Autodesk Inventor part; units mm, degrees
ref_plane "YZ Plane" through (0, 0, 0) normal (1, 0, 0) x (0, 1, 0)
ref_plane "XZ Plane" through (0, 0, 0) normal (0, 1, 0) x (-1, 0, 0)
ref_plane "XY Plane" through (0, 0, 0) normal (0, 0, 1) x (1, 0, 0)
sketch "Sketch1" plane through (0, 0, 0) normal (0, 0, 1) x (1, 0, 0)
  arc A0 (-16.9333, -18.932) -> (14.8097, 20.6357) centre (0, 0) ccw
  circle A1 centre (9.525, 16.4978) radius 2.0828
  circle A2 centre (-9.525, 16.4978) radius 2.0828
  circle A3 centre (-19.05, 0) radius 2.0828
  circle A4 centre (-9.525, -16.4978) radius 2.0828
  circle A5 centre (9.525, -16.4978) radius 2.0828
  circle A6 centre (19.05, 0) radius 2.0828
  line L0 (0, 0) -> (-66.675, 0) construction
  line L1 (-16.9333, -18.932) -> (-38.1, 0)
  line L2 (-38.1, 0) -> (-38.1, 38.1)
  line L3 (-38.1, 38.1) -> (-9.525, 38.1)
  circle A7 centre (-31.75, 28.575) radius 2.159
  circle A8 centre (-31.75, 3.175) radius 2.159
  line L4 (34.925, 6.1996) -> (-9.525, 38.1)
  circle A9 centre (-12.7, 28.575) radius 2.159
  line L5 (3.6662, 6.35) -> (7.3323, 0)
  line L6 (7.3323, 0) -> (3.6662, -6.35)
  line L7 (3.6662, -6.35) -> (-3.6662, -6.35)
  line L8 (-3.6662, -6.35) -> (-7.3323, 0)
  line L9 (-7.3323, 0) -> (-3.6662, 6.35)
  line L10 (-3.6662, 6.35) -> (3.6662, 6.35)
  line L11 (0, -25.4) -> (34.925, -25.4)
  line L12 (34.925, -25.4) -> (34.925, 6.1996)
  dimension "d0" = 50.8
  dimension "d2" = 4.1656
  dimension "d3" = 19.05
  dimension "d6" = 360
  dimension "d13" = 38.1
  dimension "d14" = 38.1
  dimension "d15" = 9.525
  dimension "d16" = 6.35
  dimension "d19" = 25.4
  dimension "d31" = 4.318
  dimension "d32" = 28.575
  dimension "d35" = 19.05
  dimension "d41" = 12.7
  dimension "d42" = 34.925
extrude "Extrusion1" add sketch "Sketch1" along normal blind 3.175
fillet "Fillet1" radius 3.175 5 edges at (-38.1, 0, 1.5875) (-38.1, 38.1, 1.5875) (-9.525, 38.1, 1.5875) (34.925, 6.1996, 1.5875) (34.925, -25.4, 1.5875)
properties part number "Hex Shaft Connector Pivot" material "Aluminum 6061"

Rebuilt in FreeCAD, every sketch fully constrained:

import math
import FreeCAD as App
import Part
import Sketcher
Q = App.Units.Quantity


def edges_at(feature, points):
    """Names of the edges that pass closest to the given points."""
    edges = feature.Shape.Edges
    near = lambda p: min(range(len(edges)), key=lambda i: edges[i].distToShape(Part.Vertex(*p))[0])
    return sorted({f"Edge{near(p) + 1}" for p in points})


def add_polygon(sketch, points):
    """Adds a closed chain of lines whose ends are joined by coincident constraints."""
    first, n = sketch.GeometryCount, len(points)
    for a, b in zip(points, points[1:] + points[:1]):
        sketch.addGeometry(Part.LineSegment(App.Vector(*a, 0), App.Vector(*b, 0)), False)
    for i in range(n):
        sketch.addConstraint(Sketcher.Constraint("Coincident", first + i, 2, first + (i + 1) % n, 1))

doc = App.newDocument("Part")
body = doc.addObject("PartDesign::Body", "Body")

# Sketch on XY plane
sketch1 = body.newObject("Sketcher::SketchObject", "Sketch")
sketch1.AttachmentSupport = (doc.getObject("XY_Plane"), [""])
sketch1.MapMode = "FlatFace"
sketch1.addGeometry(Part.LineSegment(App.Vector(-38.1, 0, 0), App.Vector(-16.9, -18.9, 0)), False)  # 0
sketch1.addGeometry(Part.ArcOfCircle(Part.Circle(App.Vector(0, 0, 0), App.Vector(0, 0, 1), 25.4), math.radians(-132), math.radians(-90)), False)  # 1
sketch1.addGeometry(Part.LineSegment(App.Vector(0, -25.4, 0), App.Vector(34.9, -25.4, 0)), False)  # 2
sketch1.addGeometry(Part.LineSegment(App.Vector(34.9, -25.4, 0), App.Vector(34.9, 6.2, 0)), False)  # 3
sketch1.addGeometry(Part.LineSegment(App.Vector(34.9, 6.2, 0), App.Vector(-9.5, 38.1, 0)), False)  # 4
sketch1.addGeometry(Part.LineSegment(App.Vector(-9.5, 38.1, 0), App.Vector(-38.1, 38.1, 0)), False)  # 5
sketch1.addGeometry(Part.LineSegment(App.Vector(-38.1, 38.1, 0), App.Vector(-38.1, 0, 0)), False)  # 6
sketch1.addGeometry(Part.Circle(App.Vector(-9.5, -16.5, 0), App.Vector(0, 0, 1), 2.1), False)  # 7
sketch1.addGeometry(Part.Circle(App.Vector(-31.8, 3.2, 0), App.Vector(0, 0, 1), 2.2), False)  # 8
sketch1.addGeometry(Part.Circle(App.Vector(-19.1, 0, 0), App.Vector(0, 0, 1), 2.1), False)  # 9
sketch1.addGeometry(Part.Circle(App.Vector(9.5, -16.5, 0), App.Vector(0, 0, 1), 2.1), False)  # 10
add_polygon(sketch1, [(-3.7, 6.3), (3.7, 6.3), (7.3, 0), (3.7, -6.3), (-3.7, -6.3), (-7.3, 0)])  # lines 11-16
sketch1.addGeometry(Part.Circle(App.Vector(19.1, 0, 0), App.Vector(0, 0, 1), 2.1), False)  # 17
sketch1.addGeometry(Part.Circle(App.Vector(-9.5, 16.5, 0), App.Vector(0, 0, 1), 2.1), False)  # 18
sketch1.addGeometry(Part.Circle(App.Vector(-31.8, 28.6, 0), App.Vector(0, 0, 1), 2.2), False)  # 19
sketch1.addGeometry(Part.Circle(App.Vector(-12.7, 28.6, 0), App.Vector(0, 0, 1), 2.2), False)  # 20
sketch1.addGeometry(Part.Circle(App.Vector(9.5, 16.5, 0), App.Vector(0, 0, 1), 2.1), False)  # 21
sketch1.addConstraint(Sketcher.Constraint("Tangent", 0, 2, 1, 1))
sketch1.addConstraint(Sketcher.Constraint("Tangent", 1, 2, 2, 1))
sketch1.addConstraint(Sketcher.Constraint("Coincident", 2, 2, 3, 1))
sketch1.addConstraint(Sketcher.Constraint("Coincident", 3, 2, 4, 1))
sketch1.addConstraint(Sketcher.Constraint("Coincident", 4, 2, 5, 1))
sketch1.addConstraint(Sketcher.Constraint("Coincident", 5, 2, 6, 1))
sketch1.addConstraint(Sketcher.Constraint("Coincident", 6, 2, 0, 1))
sketch1.addConstraint(Sketcher.Constraint("Horizontal", 2))
sketch1.addConstraint(Sketcher.Constraint("Vertical", 3))
sketch1.addConstraint(Sketcher.Constraint("Horizontal", 5))
sketch1.addConstraint(Sketcher.Constraint("Vertical", 6))
sketch1.addConstraint(Sketcher.Constraint("Horizontal", 11))
sketch1.addConstraint(Sketcher.Constraint("Horizontal", 14))
sketch1.addConstraint(Sketcher.Constraint("Coincident", 1, 3, -1, 1))
sketch1.addConstraint(Sketcher.Constraint("Equal", 7, 9))
sketch1.addConstraint(Sketcher.Constraint("Equal", 9, 10))
sketch1.addConstraint(Sketcher.Constraint("Equal", 10, 17))
sketch1.addConstraint(Sketcher.Constraint("Equal", 17, 18))
sketch1.addConstraint(Sketcher.Constraint("Equal", 8, 19))
sketch1.addConstraint(Sketcher.Constraint("Equal", 19, 20))
sketch1.addConstraint(Sketcher.Constraint("Equal", 18, 21))
sketch1.addConstraint(Sketcher.Constraint("Symmetric", 9, 3, 17, 3, -1, 1))
sketch1.addConstraint(Sketcher.Constraint("Symmetric", 10, 3, 18, 3, -1, 1))
sketch1.addConstraint(Sketcher.Constraint("Symmetric", 7, 3, 21, 3, -1, 1))
sketch1.addConstraint(Sketcher.Constraint("Symmetric", 11, 2, 14, 2, -1, 1))
sketch1.addConstraint(Sketcher.Constraint("Symmetric", 12, 2, 15, 2, -1, 1))
sketch1.addConstraint(Sketcher.Constraint("Symmetric", 7, 3, 10, 3, -2))
sketch1.addConstraint(Sketcher.Constraint("PointOnObject", 9, 3, -1))
sketch1.addConstraint(Sketcher.Constraint("PointOnObject", 6, 2, -1))
sketch1.addConstraint(Sketcher.Constraint("PointOnObject", 12, 2, -1))
sketch1.addConstraint(Sketcher.Constraint("Parallel", 13, 16))
sketch1.addConstraint(Sketcher.Constraint("Horizontal", 19, 3, 20, 3))
sketch1.addConstraint(Sketcher.Constraint("Vertical", 8, 3, 19, 3))
sketch1.addConstraint(Sketcher.Constraint("Vertical", 18, 3, 4, 2))
sketch1.addConstraint(Sketcher.Constraint("Vertical", 11, 2, 13, 2))
sketch1.addConstraint(Sketcher.Constraint("Radius", 1, Q("1 in")))
sketch1.addConstraint(Sketcher.Constraint("Diameter", 8, Q("0.17 in")))
sketch1.addConstraint(Sketcher.Constraint("Diameter", 7, Q("0.164 in")))
sketch1.addConstraint(Sketcher.Constraint("DistanceY", 6, 2, 6, 1, Q("1.5 in")))
sketch1.addConstraint(Sketcher.Constraint("DistanceX", 8, 3, 17, 3, Q("2 in")))
sketch1.addConstraint(Sketcher.Constraint("DistanceY", 8, 3, 19, 3, Q("1 in")))
sketch1.addConstraint(Sketcher.Constraint("DistanceX", 10, 3, 2, 2, Q("1 in")))
sketch1.addConstraint(Sketcher.Constraint("DistanceX", 5, 2, 20, 3, Q("1 in")))
sketch1.addConstraint(Sketcher.Constraint("DistanceX", 20, 3, -1, 1, Q("0.5 in")))
sketch1.addConstraint(Sketcher.Constraint("DistanceX", 8, 3, 9, 3, Q("0.5 in")))
sketch1.addConstraint(Sketcher.Constraint("DistanceY", 13, 2, 11, 2, Q("0.5 in")))
sketch1.addConstraint(Sketcher.Constraint("DistanceX", 2, 1, 2, 2, Q("1.375 in")))
sketch1.addConstraint(Sketcher.Constraint("DistanceY", -1, 1, 19, 3, Q("1.125 in")))
sketch1.addConstraint(Sketcher.Constraint("Angle", 12, Q("-60.0005 deg")))
sketch1.addConstraint(Sketcher.Constraint("DistanceX", 14, 2, 12, 2, Q("0.433 in")))
sketch1.addConstraint(Sketcher.Constraint("DistanceY", 3, 1, 3, 2, Q("31.5996 mm")))
sketch1.addConstraint(Sketcher.Constraint("DistanceY", 10, 3, 3, 2, Q("0.8936 in")))
pad1 = body.newObject("PartDesign::Pad", "Pad")
pad1.Profile = sketch1
pad1.Length = Q("0.125 in")
doc.recompute()

fillet = body.newObject("PartDesign::Fillet", "Fillet")
fillet.Base = (pad1, edges_at(pad1, [
    (-38.1, 0, 1.587),
    (-38.1, 38.1, 1.587),
    (-9.525, 38.1, 1.587),
    (34.925, 6.2, 1.587),
    (34.925, -25.4, 1.587),
]))
fillet.Radius = Q("0.125 in")

doc.recompute()
